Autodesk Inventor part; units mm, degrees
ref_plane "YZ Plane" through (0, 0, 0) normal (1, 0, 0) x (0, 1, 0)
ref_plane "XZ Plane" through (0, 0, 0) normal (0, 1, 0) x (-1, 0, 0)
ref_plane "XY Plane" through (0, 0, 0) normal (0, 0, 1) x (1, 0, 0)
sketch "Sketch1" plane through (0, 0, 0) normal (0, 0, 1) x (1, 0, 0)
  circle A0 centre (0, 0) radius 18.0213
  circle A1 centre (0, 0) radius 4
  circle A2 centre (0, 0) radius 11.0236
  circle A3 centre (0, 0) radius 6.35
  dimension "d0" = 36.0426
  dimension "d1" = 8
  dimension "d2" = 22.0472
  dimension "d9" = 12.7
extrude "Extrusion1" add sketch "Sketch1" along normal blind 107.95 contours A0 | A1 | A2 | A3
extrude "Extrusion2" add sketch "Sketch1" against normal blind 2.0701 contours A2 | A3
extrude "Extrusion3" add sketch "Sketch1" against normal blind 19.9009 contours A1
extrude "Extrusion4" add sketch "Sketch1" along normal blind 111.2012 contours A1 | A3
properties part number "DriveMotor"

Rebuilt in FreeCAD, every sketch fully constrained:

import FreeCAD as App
import Part
import Sketcher

V = App.Vector
Q = App.Units.Quantity

doc = App.newDocument("Part")
params = doc.addObject("Spreadsheet::Sheet", "Params")
for row, (alias, value) in enumerate([
    ("sketch1_diameter", "1.419 in"),
    ("pad1_length", "4.25 in"),
    ("sketch2_diameter", "0.868 in"),
    ("pad2_length", "0.0815 in"),
    ("pad3_length", "0.7835 in"),
    ("sketch4_diameter", "0.5 in"),
    ("pad4_length", "4.378 in"),
], start=1):
    params.set(f"A{row}", alias)
    params.set(f"B{row}", "=" + value)
    params.setAlias(f"B{row}", alias)

body = doc.addObject("PartDesign::Body", "Body")

# Sketch on XY plane
sketch1 = body.newObject("Sketcher::SketchObject", "Sketch")
sketch1.AttachmentSupport = (doc.getObject("XY_Plane"), [""])
sketch1.MapMode = "FlatFace"
sketch1.addGeometry(Part.Circle(V(0, 0, 0), V(0, 0, 1), 18), False)
sketch1.addConstraint(Sketcher.Constraint("Coincident", 0, 3, -1, 1))
sketch1.addConstraint(Sketcher.Constraint("Diameter", 0, Q("1.419 in")))
sketch1.setExpression("Constraints[1]", "Params.sketch1_diameter")
pad1 = body.newObject("PartDesign::Pad", "Pad")
pad1.Profile = sketch1
pad1.setExpression("Length", "Params.pad1_length")

# Sketch on XY plane
sketch2 = body.newObject("Sketcher::SketchObject", "Sketch001")
sketch2.AttachmentSupport = (doc.getObject("XY_Plane"), [""])
sketch2.MapMode = "FlatFace"
sketch2.addGeometry(Part.Circle(V(0, 0, 0), V(0, 0, 1), 11), False)
sketch2.addGeometry(Part.Circle(V(0, 0, 0), V(0, 0, 1), 4), False)
sketch2.addConstraint(Sketcher.Constraint("Coincident", 0, 3, -1, 1))
sketch2.addConstraint(Sketcher.Constraint("Coincident", 1, 3, -1, 1))
sketch2.addConstraint(Sketcher.Constraint("Diameter", 0, Q("0.868 in")))
sketch2.addConstraint(Sketcher.Constraint("Diameter", 1, Q("8 mm")))
sketch2.setExpression("Constraints[2]", "Params.sketch2_diameter")
pad2 = body.newObject("PartDesign::Pad", "Pad001")
pad2.Profile = sketch2
pad2.setExpression("Length", "Params.pad2_length")
pad2.Reversed = True

# Sketch on XY plane
sketch3 = body.newObject("Sketcher::SketchObject", "Sketch002")
sketch3.AttachmentSupport = (doc.getObject("XY_Plane"), [""])
sketch3.MapMode = "FlatFace"
sketch3.addGeometry(Part.Circle(V(0, 0, 0), V(0, 0, 1), 4), False)
sketch3.addConstraint(Sketcher.Constraint("Coincident", 0, 3, -1, 1))
sketch3.addConstraint(Sketcher.Constraint("Diameter", 0, Q("8 mm")))
pad3 = body.newObject("PartDesign::Pad", "Pad002")
pad3.Profile = sketch3
pad3.setExpression("Length", "Params.pad3_length")
pad3.Reversed = True

# Sketch on XY plane
sketch4 = body.newObject("Sketcher::SketchObject", "Sketch003")
sketch4.AttachmentSupport = (doc.getObject("XY_Plane"), [""])
sketch4.MapMode = "FlatFace"
sketch4.addGeometry(Part.Circle(V(0, 0, 0), V(0, 0, 1), 6), False)
sketch4.addConstraint(Sketcher.Constraint("Coincident", 0, 3, -1, 1))
sketch4.addConstraint(Sketcher.Constraint("Diameter", 0, Q("0.5 in")))
sketch4.setExpression("Constraints[1]", "Params.sketch4_diameter")
pad4 = body.newObject("PartDesign::Pad", "Pad003")
pad4.Profile = sketch4
pad4.setExpression("Length", "Params.pad4_length")

doc.recompute()
